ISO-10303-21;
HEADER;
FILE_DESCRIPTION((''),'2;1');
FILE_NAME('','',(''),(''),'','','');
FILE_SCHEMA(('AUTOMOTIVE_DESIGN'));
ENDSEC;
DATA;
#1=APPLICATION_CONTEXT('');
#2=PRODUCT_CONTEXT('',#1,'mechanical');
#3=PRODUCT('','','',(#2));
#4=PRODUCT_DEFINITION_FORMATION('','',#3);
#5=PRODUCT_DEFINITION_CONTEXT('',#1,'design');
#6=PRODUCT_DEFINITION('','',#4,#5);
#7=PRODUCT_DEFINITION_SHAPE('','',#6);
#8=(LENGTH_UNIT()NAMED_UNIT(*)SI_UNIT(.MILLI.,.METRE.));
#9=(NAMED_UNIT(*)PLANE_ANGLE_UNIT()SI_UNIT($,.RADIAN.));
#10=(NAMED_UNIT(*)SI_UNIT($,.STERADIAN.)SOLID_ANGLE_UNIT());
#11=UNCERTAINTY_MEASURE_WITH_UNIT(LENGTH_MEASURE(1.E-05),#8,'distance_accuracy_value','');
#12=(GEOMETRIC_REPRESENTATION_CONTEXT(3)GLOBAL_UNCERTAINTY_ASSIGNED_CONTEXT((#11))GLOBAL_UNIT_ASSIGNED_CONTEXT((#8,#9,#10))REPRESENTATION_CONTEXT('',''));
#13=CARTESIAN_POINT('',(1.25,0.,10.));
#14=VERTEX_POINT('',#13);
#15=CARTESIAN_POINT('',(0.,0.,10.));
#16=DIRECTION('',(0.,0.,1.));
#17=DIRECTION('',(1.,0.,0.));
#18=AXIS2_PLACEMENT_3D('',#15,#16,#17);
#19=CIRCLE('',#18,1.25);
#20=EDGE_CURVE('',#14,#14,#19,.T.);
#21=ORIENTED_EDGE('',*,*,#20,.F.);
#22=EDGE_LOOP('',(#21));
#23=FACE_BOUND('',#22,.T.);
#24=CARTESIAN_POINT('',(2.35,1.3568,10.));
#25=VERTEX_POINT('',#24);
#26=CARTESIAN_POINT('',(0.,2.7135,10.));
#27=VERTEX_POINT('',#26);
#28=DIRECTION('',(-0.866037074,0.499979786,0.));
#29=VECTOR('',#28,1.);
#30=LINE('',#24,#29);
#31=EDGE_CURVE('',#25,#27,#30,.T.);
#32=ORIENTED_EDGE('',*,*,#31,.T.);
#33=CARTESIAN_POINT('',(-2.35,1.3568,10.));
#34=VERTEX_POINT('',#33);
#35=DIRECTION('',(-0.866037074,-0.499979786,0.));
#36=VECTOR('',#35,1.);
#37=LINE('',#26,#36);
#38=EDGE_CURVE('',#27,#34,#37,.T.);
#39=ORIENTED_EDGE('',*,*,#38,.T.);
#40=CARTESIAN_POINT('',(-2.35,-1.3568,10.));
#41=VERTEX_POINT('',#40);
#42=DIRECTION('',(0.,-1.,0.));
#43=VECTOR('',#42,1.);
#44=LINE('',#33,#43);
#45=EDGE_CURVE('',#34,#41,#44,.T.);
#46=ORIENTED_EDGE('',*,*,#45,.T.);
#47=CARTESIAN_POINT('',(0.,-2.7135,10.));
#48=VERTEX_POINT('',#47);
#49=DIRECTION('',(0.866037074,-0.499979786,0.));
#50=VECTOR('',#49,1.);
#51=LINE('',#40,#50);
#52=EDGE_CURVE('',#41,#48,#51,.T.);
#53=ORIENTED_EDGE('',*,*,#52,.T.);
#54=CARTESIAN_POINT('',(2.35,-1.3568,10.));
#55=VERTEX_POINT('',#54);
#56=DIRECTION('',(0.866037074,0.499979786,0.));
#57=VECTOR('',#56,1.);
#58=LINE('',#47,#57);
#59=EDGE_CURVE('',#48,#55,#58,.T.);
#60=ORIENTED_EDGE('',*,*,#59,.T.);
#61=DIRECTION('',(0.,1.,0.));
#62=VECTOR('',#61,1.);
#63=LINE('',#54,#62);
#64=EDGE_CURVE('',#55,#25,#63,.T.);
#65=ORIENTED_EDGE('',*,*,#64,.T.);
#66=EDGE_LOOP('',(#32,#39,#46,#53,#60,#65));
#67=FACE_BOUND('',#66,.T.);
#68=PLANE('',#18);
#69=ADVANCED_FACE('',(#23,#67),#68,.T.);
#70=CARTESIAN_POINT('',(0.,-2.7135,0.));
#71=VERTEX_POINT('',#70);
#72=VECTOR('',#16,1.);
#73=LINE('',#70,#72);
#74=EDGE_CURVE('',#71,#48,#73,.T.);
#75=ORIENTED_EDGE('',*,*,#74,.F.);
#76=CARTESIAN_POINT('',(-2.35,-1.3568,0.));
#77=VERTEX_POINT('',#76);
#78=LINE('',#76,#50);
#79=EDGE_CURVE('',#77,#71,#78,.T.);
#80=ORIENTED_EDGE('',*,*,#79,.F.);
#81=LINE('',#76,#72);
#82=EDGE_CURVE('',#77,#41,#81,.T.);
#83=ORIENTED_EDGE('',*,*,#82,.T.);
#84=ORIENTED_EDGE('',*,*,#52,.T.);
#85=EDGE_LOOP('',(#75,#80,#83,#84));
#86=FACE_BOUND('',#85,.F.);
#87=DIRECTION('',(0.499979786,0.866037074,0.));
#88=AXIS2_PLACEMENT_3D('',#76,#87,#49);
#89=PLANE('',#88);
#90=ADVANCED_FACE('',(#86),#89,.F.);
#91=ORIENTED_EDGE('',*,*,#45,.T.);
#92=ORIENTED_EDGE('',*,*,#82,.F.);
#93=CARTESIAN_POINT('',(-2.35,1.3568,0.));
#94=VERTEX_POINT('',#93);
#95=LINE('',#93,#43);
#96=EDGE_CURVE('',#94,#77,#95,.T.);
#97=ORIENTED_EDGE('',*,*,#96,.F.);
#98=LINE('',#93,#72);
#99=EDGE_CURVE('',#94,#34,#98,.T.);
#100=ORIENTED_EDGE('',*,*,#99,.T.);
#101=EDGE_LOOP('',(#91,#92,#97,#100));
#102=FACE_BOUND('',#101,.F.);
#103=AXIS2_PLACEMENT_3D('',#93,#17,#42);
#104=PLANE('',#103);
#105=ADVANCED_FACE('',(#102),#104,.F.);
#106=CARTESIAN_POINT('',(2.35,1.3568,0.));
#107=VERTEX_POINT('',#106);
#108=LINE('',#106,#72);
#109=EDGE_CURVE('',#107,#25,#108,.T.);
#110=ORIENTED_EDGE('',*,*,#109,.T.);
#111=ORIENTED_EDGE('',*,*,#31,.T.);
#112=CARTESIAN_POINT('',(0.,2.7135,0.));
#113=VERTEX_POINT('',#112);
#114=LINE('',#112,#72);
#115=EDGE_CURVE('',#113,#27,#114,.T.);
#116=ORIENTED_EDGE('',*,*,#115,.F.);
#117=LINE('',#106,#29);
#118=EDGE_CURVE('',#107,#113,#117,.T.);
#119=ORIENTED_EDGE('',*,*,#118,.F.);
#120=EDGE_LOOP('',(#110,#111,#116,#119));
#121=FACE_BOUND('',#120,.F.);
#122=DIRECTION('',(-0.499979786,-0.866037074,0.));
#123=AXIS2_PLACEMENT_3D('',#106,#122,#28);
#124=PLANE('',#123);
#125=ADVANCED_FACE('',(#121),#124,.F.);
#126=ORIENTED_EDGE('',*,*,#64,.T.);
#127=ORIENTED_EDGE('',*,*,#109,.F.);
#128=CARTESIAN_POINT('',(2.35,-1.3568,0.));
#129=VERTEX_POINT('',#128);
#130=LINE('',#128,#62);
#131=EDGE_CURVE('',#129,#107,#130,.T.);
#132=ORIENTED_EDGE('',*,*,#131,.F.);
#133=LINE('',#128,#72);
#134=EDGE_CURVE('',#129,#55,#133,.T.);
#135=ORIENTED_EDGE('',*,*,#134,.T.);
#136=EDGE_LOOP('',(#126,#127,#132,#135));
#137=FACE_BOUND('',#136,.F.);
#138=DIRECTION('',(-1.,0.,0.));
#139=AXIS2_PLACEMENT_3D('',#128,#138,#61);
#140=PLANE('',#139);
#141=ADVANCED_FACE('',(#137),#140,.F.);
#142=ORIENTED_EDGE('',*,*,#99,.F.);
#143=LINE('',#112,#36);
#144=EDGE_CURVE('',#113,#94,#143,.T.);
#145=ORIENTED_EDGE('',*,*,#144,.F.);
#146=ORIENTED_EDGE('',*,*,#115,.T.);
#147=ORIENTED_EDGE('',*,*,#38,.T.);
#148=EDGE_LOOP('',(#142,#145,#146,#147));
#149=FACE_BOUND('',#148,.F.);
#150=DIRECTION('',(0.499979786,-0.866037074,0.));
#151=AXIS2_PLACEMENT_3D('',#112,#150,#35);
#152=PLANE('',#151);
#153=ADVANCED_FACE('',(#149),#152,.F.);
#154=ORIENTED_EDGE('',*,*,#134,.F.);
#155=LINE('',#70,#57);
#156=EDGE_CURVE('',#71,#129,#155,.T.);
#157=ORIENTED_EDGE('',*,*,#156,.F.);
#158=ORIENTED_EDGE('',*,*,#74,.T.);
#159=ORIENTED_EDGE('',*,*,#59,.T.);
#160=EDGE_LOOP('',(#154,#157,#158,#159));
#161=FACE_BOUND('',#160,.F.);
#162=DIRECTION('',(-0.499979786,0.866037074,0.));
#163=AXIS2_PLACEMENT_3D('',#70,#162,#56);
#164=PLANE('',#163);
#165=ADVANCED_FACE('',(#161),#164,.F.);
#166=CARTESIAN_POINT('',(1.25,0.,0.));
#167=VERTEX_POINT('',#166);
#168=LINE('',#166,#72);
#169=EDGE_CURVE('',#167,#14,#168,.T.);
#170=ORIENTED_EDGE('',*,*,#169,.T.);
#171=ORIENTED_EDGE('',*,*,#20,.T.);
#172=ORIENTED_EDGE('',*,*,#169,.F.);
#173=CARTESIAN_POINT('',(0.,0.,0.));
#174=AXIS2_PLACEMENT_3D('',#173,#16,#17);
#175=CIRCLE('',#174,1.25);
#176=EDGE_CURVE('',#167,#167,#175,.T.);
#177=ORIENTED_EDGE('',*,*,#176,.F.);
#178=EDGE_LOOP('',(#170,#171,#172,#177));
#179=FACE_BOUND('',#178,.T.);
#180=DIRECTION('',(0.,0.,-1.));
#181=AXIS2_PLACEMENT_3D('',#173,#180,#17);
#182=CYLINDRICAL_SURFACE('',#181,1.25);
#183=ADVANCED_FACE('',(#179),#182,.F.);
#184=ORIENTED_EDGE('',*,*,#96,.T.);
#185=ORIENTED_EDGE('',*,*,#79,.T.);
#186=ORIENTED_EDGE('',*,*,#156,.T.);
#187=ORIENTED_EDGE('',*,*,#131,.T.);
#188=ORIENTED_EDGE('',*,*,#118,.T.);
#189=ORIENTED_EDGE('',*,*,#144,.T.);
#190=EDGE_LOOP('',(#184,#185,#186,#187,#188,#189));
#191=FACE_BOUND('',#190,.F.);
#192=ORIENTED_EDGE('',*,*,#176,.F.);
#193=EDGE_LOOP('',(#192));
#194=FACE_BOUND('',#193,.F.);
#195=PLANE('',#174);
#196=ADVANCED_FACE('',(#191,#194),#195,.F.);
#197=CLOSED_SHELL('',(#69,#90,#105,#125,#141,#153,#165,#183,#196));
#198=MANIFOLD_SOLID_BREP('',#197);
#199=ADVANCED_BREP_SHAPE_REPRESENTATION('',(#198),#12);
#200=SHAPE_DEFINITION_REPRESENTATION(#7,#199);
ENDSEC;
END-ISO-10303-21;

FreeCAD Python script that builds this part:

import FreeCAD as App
import Part
import Sketcher


def add_polygon(sketch, points):
    """Adds a closed chain of lines whose ends are joined by coincident constraints."""
    first, n = sketch.GeometryCount, len(points)
    for a, b in zip(points, points[1:] + points[:1]):
        sketch.addGeometry(Part.LineSegment(App.Vector(*a, 0), App.Vector(*b, 0)), False)
    for i in range(n):
        sketch.addConstraint(Sketcher.Constraint("Coincident", first + i, 2, first + (i + 1) % n, 1))

doc = App.newDocument("Part")
body = doc.addObject("PartDesign::Body", "Body")

sketch1 = body.newObject("Sketcher::SketchObject", "Sketch")
sketch1.AttachmentSupport = (doc.getObject("XY_Plane"), [""])
sketch1.MapMode = "FlatFace"
add_polygon(sketch1, [(0, -2.7), (2.4, -1.4), (2.4, 1.4), (0, 2.7), (-2.4, 1.4), (-2.4, -1.4)])
sketch1.addGeometry(Part.Circle(App.Vector(0, 0, 0), App.Vector(0, 0, 1), 1.2), False)
sketch1.addConstraint([
    Sketcher.Constraint("Vertical", 1),
    Sketcher.Constraint("Vertical", 4),
    Sketcher.Constraint("Coincident", 6, 3, -1, 1),
    Sketcher.Constraint("Symmetric", 0, 2, 3, 2, -1, 1),
    Sketcher.Constraint("Symmetric", 2, 2, 5, 2, -1, 1),
    Sketcher.Constraint("PointOnObject", 2, 2, -2),
    Sketcher.Constraint("Parallel", 2, 5),
    Sketcher.Constraint("Horizontal", 1, 2, 3, 2),
    Sketcher.Constraint("Diameter", 6, 2.5),
    Sketcher.Constraint("DistanceX", 3, 2, 1, 2, 4.7),
    Sketcher.Constraint("DistanceY", 1, 1, 1, 2, 2.7136),
    Sketcher.Constraint("Distance", 0, 2.7135),
])
pad1 = body.newObject("PartDesign::Pad", "Pad")
pad1.Profile = sketch1
pad1.Length = 10

doc.recompute()
